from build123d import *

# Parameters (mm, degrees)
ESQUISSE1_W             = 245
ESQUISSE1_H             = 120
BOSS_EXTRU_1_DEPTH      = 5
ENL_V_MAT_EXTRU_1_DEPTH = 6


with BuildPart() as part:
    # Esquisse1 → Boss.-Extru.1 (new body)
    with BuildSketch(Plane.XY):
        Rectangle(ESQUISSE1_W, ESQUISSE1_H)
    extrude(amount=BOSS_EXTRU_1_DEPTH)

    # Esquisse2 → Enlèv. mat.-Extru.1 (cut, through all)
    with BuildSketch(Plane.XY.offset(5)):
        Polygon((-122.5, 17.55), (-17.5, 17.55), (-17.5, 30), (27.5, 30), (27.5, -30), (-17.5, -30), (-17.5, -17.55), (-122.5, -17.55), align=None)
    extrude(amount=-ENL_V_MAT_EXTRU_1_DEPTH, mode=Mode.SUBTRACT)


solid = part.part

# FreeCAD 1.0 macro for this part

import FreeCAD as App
import Part
import Sketcher

V = App.Vector
Q = App.Units.Quantity

doc = App.newDocument("Part")
body = doc.addObject("PartDesign::Body", "Body")

sketch1 = body.newObject("Sketcher::SketchObject", "Sketch")
sketch1.AttachmentSupport = (doc.getObject("XY_Plane"), [""])
sketch1.MapMode = "FlatFace"
sketch1.addGeometry([
    Part.LineSegment(V(-122, 60, 0), V(-122, -60, 0)),
    Part.LineSegment(V(-122, -60, 0), V(122, -60, 0)),
    Part.LineSegment(V(122, -60, 0), V(122, 60, 0)),
    Part.LineSegment(V(122, 60, 0), V(-122, 60, 0)),
], False)
sketch1.addConstraint([
    Sketcher.Constraint("Coincident", 0, 2, 1, 1),
    Sketcher.Constraint("Coincident", 1, 2, 2, 1),
    Sketcher.Constraint("Coincident", 2, 2, 3, 1),
    Sketcher.Constraint("Coincident", 3, 2, 0, 1),
    Sketcher.Constraint("Vertical", 0),
    Sketcher.Constraint("Horizontal", 1),
    Sketcher.Constraint("Vertical", 2),
    Sketcher.Constraint("Horizontal", 3),
    Sketcher.Constraint("Symmetric", 0, 2, 2, 2, -1, 1),
    Sketcher.Constraint("DistanceX", 1, 1, 1, 2, Q("245 mm")),
    Sketcher.Constraint("DistanceY", 0, 2, 0, 1, Q("120 mm")),
])
pad1 = body.newObject("PartDesign::Pad", "Pad")
pad1.Profile = sketch1
pad1.Length = 5

sketch2 = body.newObject("Sketcher::SketchObject", "Sketch001")
sketch2.AttachmentSupport = (doc.getObject("XY_Plane"), [""])
sketch2.MapMode = "FlatFace"
sketch2.AttachmentOffset = App.Placement(V(0, 0, 5), App.Rotation())
sketch2.addGeometry([
    Part.LineSegment(V(-18, 18, 0), V(-122, 18, 0)),
    Part.LineSegment(V(-122, 18, 0), V(-122, -18, 0)),
    Part.LineSegment(V(-122, -18, 0), V(-18, -18, 0)),
    Part.LineSegment(V(-18, -18, 0), V(-18, -30, 0)),
    Part.LineSegment(V(-18, -30, 0), V(28, -30, 0)),
    Part.LineSegment(V(28, -30, 0), V(28, 30, 0)),
    Part.LineSegment(V(28, 30, 0), V(-18, 30, 0)),
    Part.LineSegment(V(-18, 30, 0), V(-18, 18, 0)),
], False)
sketch2.addConstraint([
    Sketcher.Constraint("Coincident", 0, 2, 1, 1),
    Sketcher.Constraint("Coincident", 1, 2, 2, 1),
    Sketcher.Constraint("Coincident", 2, 2, 3, 1),
    Sketcher.Constraint("Coincident", 3, 2, 4, 1),
    Sketcher.Constraint("Coincident", 4, 2, 5, 1),
    Sketcher.Constraint("Coincident", 5, 2, 6, 1),
    Sketcher.Constraint("Coincident", 6, 2, 7, 1),
    Sketcher.Constraint("Coincident", 7, 2, 0, 1),
    Sketcher.Constraint("Horizontal", 0),
    Sketcher.Constraint("Vertical", 1),
    Sketcher.Constraint("Horizontal", 2),
    Sketcher.Constraint("Vertical", 3),
    Sketcher.Constraint("Horizontal", 4),
    Sketcher.Constraint("Vertical", 5),
    Sketcher.Constraint("Horizontal", 6),
    Sketcher.Constraint("Vertical", 7),
    Sketcher.Constraint("Symmetric", 3, 2, 6, 2, -1),
    Sketcher.Constraint("Equal", 3, 7),
    Sketcher.Constraint("DistanceX", 0, 2, 0, 1, Q("105 mm")),
    Sketcher.Constraint("DistanceX", 4, 1, 4, 2, Q("45 mm")),
    Sketcher.Constraint("DistanceY", 5, 1, 5, 2, Q("60 mm")),
    Sketcher.Constraint("DistanceY", 1, 2, 1, 1, Q("35.1 mm")),
    Sketcher.Constraint("DistanceX", 0, 2, -1, 1, Q("122.5 mm")),
])
pocket1 = body.newObject("PartDesign::Pocket", "Pocket")
pocket1.Profile = sketch2
pocket1.Type = "ThroughAll"

doc.recompute()
